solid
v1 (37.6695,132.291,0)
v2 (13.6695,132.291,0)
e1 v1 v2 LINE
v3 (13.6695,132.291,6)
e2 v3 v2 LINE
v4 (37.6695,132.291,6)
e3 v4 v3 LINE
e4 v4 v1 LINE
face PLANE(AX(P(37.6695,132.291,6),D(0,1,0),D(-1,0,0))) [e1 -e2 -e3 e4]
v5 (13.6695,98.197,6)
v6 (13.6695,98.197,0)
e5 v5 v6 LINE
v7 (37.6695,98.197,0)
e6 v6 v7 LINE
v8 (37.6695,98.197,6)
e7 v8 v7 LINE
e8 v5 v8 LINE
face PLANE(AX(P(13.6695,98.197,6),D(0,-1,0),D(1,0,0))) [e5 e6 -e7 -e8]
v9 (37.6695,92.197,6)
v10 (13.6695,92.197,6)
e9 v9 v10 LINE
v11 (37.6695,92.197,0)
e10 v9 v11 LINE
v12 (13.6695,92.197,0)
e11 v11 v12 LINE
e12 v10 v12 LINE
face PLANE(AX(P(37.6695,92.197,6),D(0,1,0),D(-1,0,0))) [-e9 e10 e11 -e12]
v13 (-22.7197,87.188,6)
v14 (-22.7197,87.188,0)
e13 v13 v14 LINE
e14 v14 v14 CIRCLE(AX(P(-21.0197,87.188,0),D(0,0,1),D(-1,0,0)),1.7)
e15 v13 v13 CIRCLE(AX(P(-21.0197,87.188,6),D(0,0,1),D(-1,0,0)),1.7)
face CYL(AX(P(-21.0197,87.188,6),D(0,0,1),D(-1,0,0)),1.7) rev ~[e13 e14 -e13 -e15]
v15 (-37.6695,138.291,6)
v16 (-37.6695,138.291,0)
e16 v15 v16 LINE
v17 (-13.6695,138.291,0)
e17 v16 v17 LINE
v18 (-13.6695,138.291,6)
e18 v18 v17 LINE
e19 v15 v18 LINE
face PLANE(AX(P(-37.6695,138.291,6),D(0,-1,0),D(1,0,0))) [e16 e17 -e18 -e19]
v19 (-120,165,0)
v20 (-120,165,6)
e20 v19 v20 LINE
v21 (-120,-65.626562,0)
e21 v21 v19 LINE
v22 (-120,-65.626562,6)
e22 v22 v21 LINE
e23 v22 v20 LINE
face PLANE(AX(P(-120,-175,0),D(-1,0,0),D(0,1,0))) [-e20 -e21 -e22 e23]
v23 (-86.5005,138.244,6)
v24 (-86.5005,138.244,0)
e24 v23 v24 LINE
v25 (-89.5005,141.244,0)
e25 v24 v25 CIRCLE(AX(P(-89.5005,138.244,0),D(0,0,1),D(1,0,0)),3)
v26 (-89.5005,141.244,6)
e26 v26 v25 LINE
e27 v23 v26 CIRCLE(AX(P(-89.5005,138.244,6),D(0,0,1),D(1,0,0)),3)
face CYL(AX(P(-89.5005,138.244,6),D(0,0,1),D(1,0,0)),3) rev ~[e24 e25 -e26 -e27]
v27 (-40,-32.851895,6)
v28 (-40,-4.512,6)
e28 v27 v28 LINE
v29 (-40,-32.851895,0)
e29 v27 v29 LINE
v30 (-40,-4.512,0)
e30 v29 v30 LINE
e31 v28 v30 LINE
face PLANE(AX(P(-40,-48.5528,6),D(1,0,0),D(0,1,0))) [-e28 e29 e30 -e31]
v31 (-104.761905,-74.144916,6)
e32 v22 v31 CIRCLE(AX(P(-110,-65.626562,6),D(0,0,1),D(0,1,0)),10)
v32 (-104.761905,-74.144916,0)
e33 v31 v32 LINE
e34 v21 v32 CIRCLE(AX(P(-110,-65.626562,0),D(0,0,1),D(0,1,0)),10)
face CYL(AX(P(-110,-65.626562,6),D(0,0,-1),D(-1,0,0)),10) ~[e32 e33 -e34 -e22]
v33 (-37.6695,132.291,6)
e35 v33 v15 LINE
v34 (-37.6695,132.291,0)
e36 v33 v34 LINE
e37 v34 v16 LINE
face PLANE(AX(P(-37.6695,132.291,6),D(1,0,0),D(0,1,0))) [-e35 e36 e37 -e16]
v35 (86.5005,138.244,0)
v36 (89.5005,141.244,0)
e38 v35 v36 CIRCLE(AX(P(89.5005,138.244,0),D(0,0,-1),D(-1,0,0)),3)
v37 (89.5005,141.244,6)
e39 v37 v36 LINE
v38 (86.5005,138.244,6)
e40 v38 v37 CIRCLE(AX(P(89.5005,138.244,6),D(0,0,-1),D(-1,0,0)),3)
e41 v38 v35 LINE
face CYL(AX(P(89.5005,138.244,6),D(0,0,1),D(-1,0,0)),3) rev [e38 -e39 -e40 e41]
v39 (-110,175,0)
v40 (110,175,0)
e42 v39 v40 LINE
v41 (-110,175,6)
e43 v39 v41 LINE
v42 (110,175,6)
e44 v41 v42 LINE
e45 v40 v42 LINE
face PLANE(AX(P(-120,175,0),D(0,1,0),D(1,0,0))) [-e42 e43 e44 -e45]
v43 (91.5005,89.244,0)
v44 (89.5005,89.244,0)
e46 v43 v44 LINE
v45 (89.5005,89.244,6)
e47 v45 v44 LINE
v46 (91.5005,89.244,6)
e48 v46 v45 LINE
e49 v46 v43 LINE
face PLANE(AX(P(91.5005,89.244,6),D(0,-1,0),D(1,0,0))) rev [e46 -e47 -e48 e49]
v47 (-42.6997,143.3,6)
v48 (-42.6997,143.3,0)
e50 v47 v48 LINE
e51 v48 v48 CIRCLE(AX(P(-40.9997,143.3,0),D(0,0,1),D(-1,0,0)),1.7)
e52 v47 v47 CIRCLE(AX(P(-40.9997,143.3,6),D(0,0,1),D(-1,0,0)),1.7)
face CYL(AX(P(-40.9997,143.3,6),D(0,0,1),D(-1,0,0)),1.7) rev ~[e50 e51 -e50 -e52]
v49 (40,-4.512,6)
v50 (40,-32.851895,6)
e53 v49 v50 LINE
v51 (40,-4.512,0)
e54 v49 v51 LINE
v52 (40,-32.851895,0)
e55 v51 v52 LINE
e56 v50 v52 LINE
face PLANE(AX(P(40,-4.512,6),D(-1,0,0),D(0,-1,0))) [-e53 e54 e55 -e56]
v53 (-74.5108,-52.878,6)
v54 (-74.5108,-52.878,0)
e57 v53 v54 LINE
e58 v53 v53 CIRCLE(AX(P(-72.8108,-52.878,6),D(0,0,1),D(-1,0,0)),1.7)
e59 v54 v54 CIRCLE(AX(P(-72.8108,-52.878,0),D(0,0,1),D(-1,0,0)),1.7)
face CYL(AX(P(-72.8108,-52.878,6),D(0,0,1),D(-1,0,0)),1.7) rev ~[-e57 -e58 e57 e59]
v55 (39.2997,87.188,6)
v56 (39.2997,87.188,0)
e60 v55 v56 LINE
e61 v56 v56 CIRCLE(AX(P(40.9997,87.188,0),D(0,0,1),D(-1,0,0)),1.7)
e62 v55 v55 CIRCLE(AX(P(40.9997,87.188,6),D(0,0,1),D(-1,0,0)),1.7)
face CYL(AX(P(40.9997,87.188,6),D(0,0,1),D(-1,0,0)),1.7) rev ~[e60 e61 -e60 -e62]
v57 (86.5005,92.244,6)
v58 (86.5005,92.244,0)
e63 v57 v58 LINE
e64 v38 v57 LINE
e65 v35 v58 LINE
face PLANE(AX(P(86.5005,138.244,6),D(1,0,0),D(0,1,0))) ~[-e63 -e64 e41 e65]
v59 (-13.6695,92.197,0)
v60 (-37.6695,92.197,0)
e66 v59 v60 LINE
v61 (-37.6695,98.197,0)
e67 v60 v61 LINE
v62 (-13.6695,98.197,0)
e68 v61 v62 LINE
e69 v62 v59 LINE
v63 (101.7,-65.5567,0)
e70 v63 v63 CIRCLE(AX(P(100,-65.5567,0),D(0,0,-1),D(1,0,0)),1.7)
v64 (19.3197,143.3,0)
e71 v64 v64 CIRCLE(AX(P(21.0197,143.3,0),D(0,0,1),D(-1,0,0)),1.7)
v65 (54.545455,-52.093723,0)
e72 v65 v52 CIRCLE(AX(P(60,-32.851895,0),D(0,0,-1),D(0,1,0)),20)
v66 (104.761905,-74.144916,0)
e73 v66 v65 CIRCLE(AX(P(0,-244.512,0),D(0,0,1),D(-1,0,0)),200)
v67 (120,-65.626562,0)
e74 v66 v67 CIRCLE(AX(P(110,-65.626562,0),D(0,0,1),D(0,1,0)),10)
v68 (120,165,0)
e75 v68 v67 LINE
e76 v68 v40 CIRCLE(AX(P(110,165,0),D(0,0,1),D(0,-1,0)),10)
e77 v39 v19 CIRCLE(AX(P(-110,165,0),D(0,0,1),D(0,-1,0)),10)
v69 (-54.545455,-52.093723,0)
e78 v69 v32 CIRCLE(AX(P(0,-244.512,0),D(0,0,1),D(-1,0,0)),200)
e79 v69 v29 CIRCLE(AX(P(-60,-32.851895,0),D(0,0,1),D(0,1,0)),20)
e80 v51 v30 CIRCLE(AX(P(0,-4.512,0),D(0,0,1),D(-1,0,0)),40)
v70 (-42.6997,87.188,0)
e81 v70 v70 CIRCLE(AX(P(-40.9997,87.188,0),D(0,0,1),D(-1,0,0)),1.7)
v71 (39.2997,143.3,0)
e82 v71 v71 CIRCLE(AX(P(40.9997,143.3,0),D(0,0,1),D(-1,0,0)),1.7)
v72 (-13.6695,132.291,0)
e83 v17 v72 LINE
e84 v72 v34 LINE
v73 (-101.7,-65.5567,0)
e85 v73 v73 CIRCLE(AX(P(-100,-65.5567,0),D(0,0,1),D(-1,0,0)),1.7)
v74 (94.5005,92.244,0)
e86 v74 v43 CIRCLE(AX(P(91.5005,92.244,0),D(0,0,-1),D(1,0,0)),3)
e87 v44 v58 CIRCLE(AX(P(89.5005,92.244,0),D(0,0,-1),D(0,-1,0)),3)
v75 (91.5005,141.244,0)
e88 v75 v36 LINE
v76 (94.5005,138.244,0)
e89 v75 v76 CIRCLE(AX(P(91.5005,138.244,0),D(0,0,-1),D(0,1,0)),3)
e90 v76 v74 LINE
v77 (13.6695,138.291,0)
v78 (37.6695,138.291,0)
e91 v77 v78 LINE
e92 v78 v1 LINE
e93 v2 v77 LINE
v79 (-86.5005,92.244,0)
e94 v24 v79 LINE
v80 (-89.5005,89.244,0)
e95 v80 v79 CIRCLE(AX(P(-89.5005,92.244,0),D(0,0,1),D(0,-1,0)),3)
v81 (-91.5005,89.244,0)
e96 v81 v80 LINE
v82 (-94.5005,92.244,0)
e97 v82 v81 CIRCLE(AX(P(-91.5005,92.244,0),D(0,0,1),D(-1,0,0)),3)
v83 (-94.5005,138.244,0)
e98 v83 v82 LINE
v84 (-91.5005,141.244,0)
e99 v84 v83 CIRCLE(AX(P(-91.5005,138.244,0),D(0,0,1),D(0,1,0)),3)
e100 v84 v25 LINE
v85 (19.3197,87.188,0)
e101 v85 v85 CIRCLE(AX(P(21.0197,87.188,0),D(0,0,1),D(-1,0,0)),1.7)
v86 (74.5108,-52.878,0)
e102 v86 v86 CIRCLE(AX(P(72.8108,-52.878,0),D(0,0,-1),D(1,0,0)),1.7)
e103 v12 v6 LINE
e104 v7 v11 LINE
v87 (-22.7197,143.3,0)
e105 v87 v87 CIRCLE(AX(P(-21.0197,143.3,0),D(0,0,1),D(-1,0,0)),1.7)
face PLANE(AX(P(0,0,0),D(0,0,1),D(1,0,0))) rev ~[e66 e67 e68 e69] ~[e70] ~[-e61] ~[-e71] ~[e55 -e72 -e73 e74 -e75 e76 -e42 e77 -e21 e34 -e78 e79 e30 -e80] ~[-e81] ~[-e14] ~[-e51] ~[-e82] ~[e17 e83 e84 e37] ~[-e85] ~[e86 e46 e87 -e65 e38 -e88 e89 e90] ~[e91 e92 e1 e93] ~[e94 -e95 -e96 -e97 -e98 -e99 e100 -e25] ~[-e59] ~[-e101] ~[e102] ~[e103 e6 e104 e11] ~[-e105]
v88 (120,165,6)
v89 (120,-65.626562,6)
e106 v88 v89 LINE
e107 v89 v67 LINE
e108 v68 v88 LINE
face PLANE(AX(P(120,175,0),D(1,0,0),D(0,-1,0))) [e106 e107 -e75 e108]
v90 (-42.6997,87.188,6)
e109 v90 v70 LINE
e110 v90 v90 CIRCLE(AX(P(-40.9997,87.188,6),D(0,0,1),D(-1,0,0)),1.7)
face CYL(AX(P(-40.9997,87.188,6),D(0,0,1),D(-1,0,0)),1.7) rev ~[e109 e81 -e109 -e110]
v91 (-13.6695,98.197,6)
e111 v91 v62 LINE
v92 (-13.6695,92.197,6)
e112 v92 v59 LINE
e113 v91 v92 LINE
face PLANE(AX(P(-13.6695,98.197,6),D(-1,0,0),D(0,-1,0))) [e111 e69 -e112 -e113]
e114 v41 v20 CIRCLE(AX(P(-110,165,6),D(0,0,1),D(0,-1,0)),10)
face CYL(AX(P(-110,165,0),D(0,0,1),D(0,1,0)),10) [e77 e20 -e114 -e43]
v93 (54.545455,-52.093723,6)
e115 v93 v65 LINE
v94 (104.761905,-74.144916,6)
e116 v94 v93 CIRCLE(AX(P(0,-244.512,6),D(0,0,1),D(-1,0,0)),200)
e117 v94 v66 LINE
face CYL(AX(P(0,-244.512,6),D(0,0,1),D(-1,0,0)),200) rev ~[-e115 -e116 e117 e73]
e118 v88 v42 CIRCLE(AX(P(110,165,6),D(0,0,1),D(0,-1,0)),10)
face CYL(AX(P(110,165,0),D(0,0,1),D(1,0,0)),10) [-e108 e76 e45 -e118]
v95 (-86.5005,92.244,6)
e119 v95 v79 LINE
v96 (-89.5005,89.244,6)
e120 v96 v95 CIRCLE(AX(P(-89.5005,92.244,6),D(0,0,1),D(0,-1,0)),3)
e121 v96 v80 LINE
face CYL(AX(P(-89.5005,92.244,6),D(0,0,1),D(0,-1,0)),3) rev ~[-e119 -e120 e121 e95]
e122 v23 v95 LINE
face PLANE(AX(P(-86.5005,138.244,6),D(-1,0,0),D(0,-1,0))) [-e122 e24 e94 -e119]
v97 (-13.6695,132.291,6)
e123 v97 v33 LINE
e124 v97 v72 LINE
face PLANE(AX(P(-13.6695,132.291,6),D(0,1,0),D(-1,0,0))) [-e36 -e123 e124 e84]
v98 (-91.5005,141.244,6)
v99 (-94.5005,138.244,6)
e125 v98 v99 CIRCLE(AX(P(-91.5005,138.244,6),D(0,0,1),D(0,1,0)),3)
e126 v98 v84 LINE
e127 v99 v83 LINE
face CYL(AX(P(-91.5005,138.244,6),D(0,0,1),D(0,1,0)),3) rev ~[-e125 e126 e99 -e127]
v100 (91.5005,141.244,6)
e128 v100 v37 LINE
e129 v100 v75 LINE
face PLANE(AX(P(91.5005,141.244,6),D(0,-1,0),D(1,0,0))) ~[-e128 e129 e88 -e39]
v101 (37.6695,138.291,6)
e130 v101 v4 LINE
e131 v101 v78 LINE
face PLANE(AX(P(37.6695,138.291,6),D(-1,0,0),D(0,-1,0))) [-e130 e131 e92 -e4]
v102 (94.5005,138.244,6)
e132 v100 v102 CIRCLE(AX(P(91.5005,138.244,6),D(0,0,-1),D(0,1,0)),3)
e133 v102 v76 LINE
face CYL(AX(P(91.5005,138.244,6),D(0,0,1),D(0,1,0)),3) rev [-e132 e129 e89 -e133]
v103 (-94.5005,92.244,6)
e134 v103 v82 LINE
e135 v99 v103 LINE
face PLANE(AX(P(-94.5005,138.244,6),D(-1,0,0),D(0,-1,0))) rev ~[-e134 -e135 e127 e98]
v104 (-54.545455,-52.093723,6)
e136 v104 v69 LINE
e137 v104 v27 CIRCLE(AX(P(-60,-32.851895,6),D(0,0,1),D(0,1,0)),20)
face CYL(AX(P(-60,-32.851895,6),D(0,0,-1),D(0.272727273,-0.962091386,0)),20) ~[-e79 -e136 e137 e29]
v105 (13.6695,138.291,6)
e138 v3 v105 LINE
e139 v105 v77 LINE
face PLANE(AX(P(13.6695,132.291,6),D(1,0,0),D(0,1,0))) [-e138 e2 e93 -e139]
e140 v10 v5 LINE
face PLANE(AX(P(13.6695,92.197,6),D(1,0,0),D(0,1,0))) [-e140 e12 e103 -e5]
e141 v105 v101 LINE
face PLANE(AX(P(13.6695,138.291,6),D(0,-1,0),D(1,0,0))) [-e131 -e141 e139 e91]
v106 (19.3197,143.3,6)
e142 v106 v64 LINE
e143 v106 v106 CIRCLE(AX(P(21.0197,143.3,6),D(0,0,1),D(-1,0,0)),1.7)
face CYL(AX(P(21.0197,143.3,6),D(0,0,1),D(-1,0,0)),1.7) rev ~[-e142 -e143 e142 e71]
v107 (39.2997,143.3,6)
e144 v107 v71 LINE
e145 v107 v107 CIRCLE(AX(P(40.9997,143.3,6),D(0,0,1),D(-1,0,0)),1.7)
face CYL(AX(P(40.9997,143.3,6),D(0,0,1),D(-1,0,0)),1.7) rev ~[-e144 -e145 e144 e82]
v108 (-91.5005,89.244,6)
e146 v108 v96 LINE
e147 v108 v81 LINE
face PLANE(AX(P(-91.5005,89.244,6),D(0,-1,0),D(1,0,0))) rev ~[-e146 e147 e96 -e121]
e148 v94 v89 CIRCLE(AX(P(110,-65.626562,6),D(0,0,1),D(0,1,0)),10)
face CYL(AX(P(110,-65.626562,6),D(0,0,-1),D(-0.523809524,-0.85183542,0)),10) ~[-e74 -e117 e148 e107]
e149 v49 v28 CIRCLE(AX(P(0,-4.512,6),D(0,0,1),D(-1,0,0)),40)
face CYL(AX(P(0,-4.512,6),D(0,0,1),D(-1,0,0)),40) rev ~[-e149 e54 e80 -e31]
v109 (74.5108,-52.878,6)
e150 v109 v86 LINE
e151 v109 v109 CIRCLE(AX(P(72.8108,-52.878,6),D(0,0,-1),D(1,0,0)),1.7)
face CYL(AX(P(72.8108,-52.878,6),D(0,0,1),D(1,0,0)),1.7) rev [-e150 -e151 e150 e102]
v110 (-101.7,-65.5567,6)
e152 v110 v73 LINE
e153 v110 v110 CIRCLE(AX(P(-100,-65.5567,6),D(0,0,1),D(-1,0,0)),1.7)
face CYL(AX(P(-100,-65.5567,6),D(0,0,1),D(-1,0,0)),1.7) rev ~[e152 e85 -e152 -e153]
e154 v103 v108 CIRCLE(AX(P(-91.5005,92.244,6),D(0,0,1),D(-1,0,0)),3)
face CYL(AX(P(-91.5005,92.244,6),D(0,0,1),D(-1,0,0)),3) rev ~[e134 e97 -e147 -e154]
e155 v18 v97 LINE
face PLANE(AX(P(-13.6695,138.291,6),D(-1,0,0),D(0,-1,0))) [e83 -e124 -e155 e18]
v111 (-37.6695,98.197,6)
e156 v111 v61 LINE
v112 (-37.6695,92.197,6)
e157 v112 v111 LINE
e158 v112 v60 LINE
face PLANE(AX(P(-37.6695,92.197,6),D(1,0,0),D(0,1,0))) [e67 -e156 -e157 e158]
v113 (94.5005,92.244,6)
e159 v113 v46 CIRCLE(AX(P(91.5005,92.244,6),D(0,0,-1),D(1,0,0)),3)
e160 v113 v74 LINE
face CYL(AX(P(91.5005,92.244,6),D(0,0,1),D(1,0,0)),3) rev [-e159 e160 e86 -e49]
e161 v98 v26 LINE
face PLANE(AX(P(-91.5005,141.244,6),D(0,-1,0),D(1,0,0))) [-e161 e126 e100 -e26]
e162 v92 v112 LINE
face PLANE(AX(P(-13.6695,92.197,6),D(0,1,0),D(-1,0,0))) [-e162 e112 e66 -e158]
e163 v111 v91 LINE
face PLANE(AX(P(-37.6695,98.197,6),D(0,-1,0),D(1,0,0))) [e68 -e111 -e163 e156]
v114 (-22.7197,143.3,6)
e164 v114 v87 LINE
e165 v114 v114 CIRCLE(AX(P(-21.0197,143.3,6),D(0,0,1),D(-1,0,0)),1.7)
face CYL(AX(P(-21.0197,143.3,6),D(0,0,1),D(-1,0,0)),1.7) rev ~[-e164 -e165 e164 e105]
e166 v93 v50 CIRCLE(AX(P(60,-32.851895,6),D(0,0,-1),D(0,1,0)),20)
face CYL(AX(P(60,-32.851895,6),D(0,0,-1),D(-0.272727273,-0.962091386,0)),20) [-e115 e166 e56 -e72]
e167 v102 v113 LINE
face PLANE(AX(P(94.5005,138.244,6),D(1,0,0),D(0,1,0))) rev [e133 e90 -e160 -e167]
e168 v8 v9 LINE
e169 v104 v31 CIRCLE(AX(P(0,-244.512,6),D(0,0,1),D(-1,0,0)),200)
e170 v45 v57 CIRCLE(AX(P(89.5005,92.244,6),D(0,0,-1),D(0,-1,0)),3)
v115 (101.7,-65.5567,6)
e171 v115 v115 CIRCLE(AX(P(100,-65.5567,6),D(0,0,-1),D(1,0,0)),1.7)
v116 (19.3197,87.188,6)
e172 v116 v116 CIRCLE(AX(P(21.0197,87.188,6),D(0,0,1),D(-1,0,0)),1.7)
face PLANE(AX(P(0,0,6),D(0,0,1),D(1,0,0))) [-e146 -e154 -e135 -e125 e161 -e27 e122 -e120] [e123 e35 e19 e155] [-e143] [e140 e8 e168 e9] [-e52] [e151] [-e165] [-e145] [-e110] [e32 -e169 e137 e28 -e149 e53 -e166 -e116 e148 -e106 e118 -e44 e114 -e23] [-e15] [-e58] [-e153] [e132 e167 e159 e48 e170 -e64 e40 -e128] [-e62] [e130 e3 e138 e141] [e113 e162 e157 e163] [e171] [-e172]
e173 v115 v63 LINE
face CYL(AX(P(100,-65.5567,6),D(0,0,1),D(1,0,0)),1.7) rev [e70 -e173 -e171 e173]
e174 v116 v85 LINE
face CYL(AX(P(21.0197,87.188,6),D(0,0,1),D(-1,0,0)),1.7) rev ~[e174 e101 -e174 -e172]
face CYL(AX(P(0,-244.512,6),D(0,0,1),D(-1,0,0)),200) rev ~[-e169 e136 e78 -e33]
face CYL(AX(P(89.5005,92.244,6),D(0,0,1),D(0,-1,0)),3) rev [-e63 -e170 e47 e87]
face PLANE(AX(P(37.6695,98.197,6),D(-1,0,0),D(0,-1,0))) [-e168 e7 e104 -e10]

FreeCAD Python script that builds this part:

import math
import FreeCAD as App
import Part
import Sketcher

V = App.Vector
Q = App.Units.Quantity


def edges_at(feature, points):
    """Names of the edges that pass closest to the given points."""
    edges = feature.Shape.Edges
    near = lambda p: min(range(len(edges)), key=lambda i: edges[i].distToShape(Part.Vertex(*p))[0])
    return sorted({f"Edge{near(p) + 1}" for p in points})

doc = App.newDocument("Part")
body = doc.addObject("PartDesign::Body", "Body")

# Sketch on XY plane
sketch1 = body.newObject("Sketcher::SketchObject", "Sketch")
sketch1.AttachmentSupport = (doc.getObject("XY_Plane"), [""])
sketch1.MapMode = "FlatFace"
sketch1.addGeometry([
    Part.LineSegment(V(120, 175, 0), V(-120, 175, 0)),
    Part.LineSegment(V(-120, 175, 0), V(-120, -175, 0)),
    Part.LineSegment(V(-120, -175, 0), V(120, -175, 0)),
    Part.LineSegment(V(120, -175, 0), V(120, 175, 0)),
], False)
sketch1.addConstraint([
    Sketcher.Constraint("Coincident", 0, 2, 1, 1),
    Sketcher.Constraint("Coincident", 1, 2, 2, 1),
    Sketcher.Constraint("Coincident", 2, 2, 3, 1),
    Sketcher.Constraint("Coincident", 3, 2, 0, 1),
    Sketcher.Constraint("Horizontal", 0),
    Sketcher.Constraint("Vertical", 1),
    Sketcher.Constraint("Horizontal", 2),
    Sketcher.Constraint("Vertical", 3),
    Sketcher.Constraint("Symmetric", 0, 2, 2, 2, -1, 1),
    Sketcher.Constraint("DistanceX", 0, 2, 0, 1, Q("240 mm")),
    Sketcher.Constraint("DistanceY", 1, 2, 1, 1, Q("350 mm")),
])
pad1 = body.newObject("PartDesign::Pad", "Pad")
pad1.Profile = sketch1
pad1.Length = 6

# Sketch on XY plane
sketch2 = body.newObject("Sketcher::SketchObject", "Sketch001")
sketch2.AttachmentSupport = (doc.getObject("XY_Plane"), [""])
sketch2.MapMode = "FlatFace"
sketch2.AttachmentOffset = App.Placement(V(0, 0, 6), App.Rotation())
sketch2.addGeometry([
    Part.LineSegment(V(-13.7, 98.2, 0), V(-37.7, 98.2, 0)),  # 0
    Part.LineSegment(V(-37.7, 98.2, 0), V(-37.7, 92.2, 0)),  # 1
    Part.LineSegment(V(-37.7, 92.2, 0), V(-13.7, 92.2, 0)),  # 2
    Part.LineSegment(V(-13.7, 92.2, 0), V(-13.7, 98.2, 0)),  # 3
    Part.LineSegment(V(37.7, 98.2, 0), V(13.7, 98.2, 0)),  # 4
    Part.LineSegment(V(13.7, 98.2, 0), V(13.7, 92.2, 0)),  # 5
    Part.LineSegment(V(13.7, 92.2, 0), V(37.7, 92.2, 0)),  # 6
    Part.LineSegment(V(37.7, 92.2, 0), V(37.7, 98.2, 0)),  # 7
    Part.LineSegment(V(-13.7, 138.3, 0), V(-37.7, 138.3, 0)),  # 8
    Part.LineSegment(V(-37.7, 138.3, 0), V(-37.7, 132.3, 0)),  # 9
    Part.LineSegment(V(-37.7, 132.3, 0), V(-13.7, 132.3, 0)),  # 10
    Part.LineSegment(V(-13.7, 132.3, 0), V(-13.7, 138.3, 0)),  # 11
    Part.LineSegment(V(37.7, 138.3, 0), V(13.7, 138.3, 0)),  # 12
    Part.LineSegment(V(13.7, 138.3, 0), V(13.7, 132.3, 0)),  # 13
    Part.LineSegment(V(13.7, 132.3, 0), V(37.7, 132.3, 0)),  # 14
    Part.LineSegment(V(37.7, 132.3, 0), V(37.7, 138.3, 0)),  # 15
    Part.Circle(V(-41, 143.3, 0), V(0, 0, 1), 1.7),  # 16
    Part.Circle(V(-21, 143.3, 0), V(0, 0, 1), 1.7),  # 17
    Part.Circle(V(-41, 87.2, 0), V(0, 0, 1), 1.7),  # 18
    Part.Circle(V(-21, 87.2, 0), V(0, 0, 1), 1.7),  # 19
    Part.Circle(V(21, 143.3, 0), V(0, 0, 1), 1.7),  # 20
    Part.Circle(V(41, 143.3, 0), V(0, 0, 1), 1.7),  # 21
    Part.Circle(V(21, 87.2, 0), V(0, 0, 1), 1.7),  # 22
    Part.Circle(V(41, 87.2, 0), V(0, 0, 1), 1.7),  # 23
], False)
sketch2.addConstraint([
    Sketcher.Constraint("Coincident", 0, 2, 1, 1),
    Sketcher.Constraint("Coincident", 1, 2, 2, 1),
    Sketcher.Constraint("Coincident", 2, 2, 3, 1),
    Sketcher.Constraint("Coincident", 3, 2, 0, 1),
    Sketcher.Constraint("Coincident", 4, 2, 5, 1),
    Sketcher.Constraint("Coincident", 5, 2, 6, 1),
    Sketcher.Constraint("Coincident", 6, 2, 7, 1),
    Sketcher.Constraint("Coincident", 7, 2, 4, 1),
    Sketcher.Constraint("Coincident", 8, 2, 9, 1),
    Sketcher.Constraint("Coincident", 9, 2, 10, 1),
    Sketcher.Constraint("Coincident", 10, 2, 11, 1),
    Sketcher.Constraint("Coincident", 11, 2, 8, 1),
    Sketcher.Constraint("Coincident", 12, 2, 13, 1),
    Sketcher.Constraint("Coincident", 13, 2, 14, 1),
    Sketcher.Constraint("Coincident", 14, 2, 15, 1),
    Sketcher.Constraint("Coincident", 15, 2, 12, 1),
    Sketcher.Constraint("Horizontal", 0),
    Sketcher.Constraint("Vertical", 1),
    Sketcher.Constraint("Horizontal", 2),
    Sketcher.Constraint("Vertical", 3),
    Sketcher.Constraint("Horizontal", 4),
    Sketcher.Constraint("Vertical", 5),
    Sketcher.Constraint("Horizontal", 6),
    Sketcher.Constraint("Vertical", 7),
    Sketcher.Constraint("Horizontal", 8),
    Sketcher.Constraint("Vertical", 9),
    Sketcher.Constraint("Horizontal", 10),
    Sketcher.Constraint("Vertical", 11),
    Sketcher.Constraint("Horizontal", 12),
    Sketcher.Constraint("Vertical", 13),
    Sketcher.Constraint("Horizontal", 14),
    Sketcher.Constraint("Vertical", 15),
    Sketcher.Constraint("Equal", 16, 17),
    Sketcher.Constraint("Equal", 17, 18),
    Sketcher.Constraint("Equal", 18, 19),
    Sketcher.Constraint("Equal", 19, 20),
    Sketcher.Constraint("Equal", 20, 21),
    Sketcher.Constraint("Equal", 21, 22),
    Sketcher.Constraint("Equal", 22, 23),
    Sketcher.Constraint("Symmetric", 17, 3, 20, 3, -2),
    Sketcher.Constraint("Symmetric", 16, 3, 21, 3, -2),
    Sketcher.Constraint("Symmetric", 19, 3, 22, 3, -2),
    Sketcher.Constraint("Symmetric", 18, 3, 23, 3, -2),
    Sketcher.Constraint("Symmetric", 3, 2, 4, 2, -2),
    Sketcher.Constraint("Symmetric", 1, 2, 6, 2, -2),
    Sketcher.Constraint("Symmetric", 11, 2, 12, 2, -2),
    Sketcher.Constraint("Symmetric", 9, 2, 14, 2, -2),
    Sketcher.Constraint("Horizontal", 16, 3, 17, 3),
    Sketcher.Constraint("Horizontal", 18, 3, 19, 3),
    Sketcher.Constraint("Vertical", 16, 3, 18, 3),
    Sketcher.Constraint("Vertical", 17, 3, 19, 3),
    Sketcher.Constraint("Vertical", 1, 2, 8, 2),
    Sketcher.Constraint("Vertical", 3, 2, 10, 2),
    Sketcher.Constraint("Equal", 7, 9),
    Sketcher.Constraint("Diameter", 16, Q("3.4 mm")),
    Sketcher.Constraint("DistanceX", 0, 2, 0, 1, Q("24 mm")),
    Sketcher.Constraint("DistanceY", 1, 2, 1, 1, Q("6 mm")),
    Sketcher.Constraint("DistanceX", 16, 3, 17, 3, Q("19.98 mm")),
    Sketcher.Constraint("DistanceX", 3, 2, 4, 2, Q("27.339 mm")),
    Sketcher.Constraint("DistanceY", 0, 2, 9, 2, Q("34.094 mm")),
    Sketcher.Constraint("DistanceY", -1, 1, 16, 3, Q("143.3 mm")),
    Sketcher.Constraint("DistanceY", -1, 1, 18, 3, Q("87.188 mm")),
    Sketcher.Constraint("DistanceY", -1, 1, 0, 2, Q("98.197 mm")),
    Sketcher.Constraint("DistanceX", 16, 3, -1, 1, Q("40.9997 mm")),
])
pocket1 = body.newObject("PartDesign::Pocket", "Pocket")
pocket1.Profile = sketch2
pocket1.Length = 6

# Sketch on XY plane
sketch3 = body.newObject("Sketcher::SketchObject", "Sketch002")
sketch3.AttachmentSupport = (doc.getObject("XY_Plane"), [""])
sketch3.MapMode = "FlatFace"
sketch3.AttachmentOffset = App.Placement(V(0, 0, 6), App.Rotation())
sketch3.addGeometry([
    Part.ArcOfCircle(Part.Circle(V(-91.5, 138.2, 0), V(0, 0, 1), 3), math.radians(90), math.radians(180)),  # 0
    Part.LineSegment(V(-94.5, 138.2, 0), V(-94.5, 92.2, 0)),  # 1
    Part.ArcOfCircle(Part.Circle(V(-91.5, 92.2, 0), V(0, 0, 1), 3), math.radians(180), math.radians(270)),  # 2
    Part.LineSegment(V(-91.5, 89.2, 0), V(-89.5, 89.2, 0)),  # 3
    Part.ArcOfCircle(Part.Circle(V(-89.5, 92.2, 0), V(0, 0, 1), 3), math.radians(-90), math.radians(0)),  # 4
    Part.LineSegment(V(-86.5, 92.2, 0), V(-86.5, 138.2, 0)),  # 5
    Part.ArcOfCircle(Part.Circle(V(-89.5, 138.2, 0), V(0, 0, 1), 3), math.radians(0), math.radians(90)),  # 6
    Part.LineSegment(V(-89.5, 141.2, 0), V(-91.5, 141.2, 0)),  # 7
], False)
sketch3.addConstraint([
    Sketcher.Constraint("Tangent", 0, 2, 1, 1),
    Sketcher.Constraint("Tangent", 1, 2, 2, 1),
    Sketcher.Constraint("Tangent", 2, 2, 3, 1),
    Sketcher.Constraint("Tangent", 3, 2, 4, 1),
    Sketcher.Constraint("Tangent", 4, 2, 5, 1),
    Sketcher.Constraint("Tangent", 5, 2, 6, 1),
    Sketcher.Constraint("Tangent", 6, 2, 7, 1),
    Sketcher.Constraint("Tangent", 7, 2, 0, 1),
    Sketcher.Constraint("Vertical", 1),
    Sketcher.Constraint("Horizontal", 3),
    Sketcher.Constraint("Vertical", 5),
    Sketcher.Constraint("Horizontal", 7),
    Sketcher.Constraint("Equal", 0, 2),
    Sketcher.Constraint("Equal", 2, 4),
    Sketcher.Constraint("Equal", 4, 6),
    Sketcher.Constraint("Radius", 0, Q("3 mm")),
    Sketcher.Constraint("DistanceX", 3, 1, 3, 2, Q("2 mm")),
    Sketcher.Constraint("DistanceY", 1, 2, 1, 1, Q("46 mm")),
    Sketcher.Constraint("DistanceY", -1, 1, 0, 3, Q("138.244 mm")),
    Sketcher.Constraint("DistanceX", 0, 3, -1, 1, Q("91.5005 mm")),
])
pocket2 = body.newObject("PartDesign::Pocket", "Pocket001")
pocket2.Profile = sketch3
pocket2.Length = 6
doc.recompute()

mirrored = body.newObject("PartDesign::Mirrored", "Mirrored")
mirrored.Originals = [pocket2]
mirrored.MirrorPlane = (doc.getObject("YZ_Plane"), [""])
body.Tip = mirrored

# Sketch on XY plane
sketch4 = body.newObject("Sketcher::SketchObject", "Sketch003")
sketch4.AttachmentSupport = (doc.getObject("XY_Plane"), [""])
sketch4.MapMode = "FlatFace"
sketch4.AttachmentOffset = App.Placement(V(0, 0, 6), App.Rotation())
sketch4.addGeometry(Part.Circle(V(0, -5, 0), V(0, 0, 1), 40), False)
sketch4.addConstraint([
    Sketcher.Constraint("PointOnObject", 0, 3, -2),
    Sketcher.Constraint("Diameter", 0, Q("80 mm")),
    Sketcher.Constraint("DistanceY", 0, 3, -1, 1, Q("4.512 mm")),
])
pocket3 = body.newObject("PartDesign::Pocket", "Pocket002")
pocket3.Profile = sketch4
pocket3.Length = 6

# Sketch on XY plane
sketch5 = body.newObject("Sketcher::SketchObject", "Sketch004")
sketch5.AttachmentSupport = (doc.getObject("XY_Plane"), [""])
sketch5.MapMode = "FlatFace"
sketch5.AttachmentOffset = App.Placement(V(0, 0, 6), App.Rotation())
sketch5.addGeometry([
    Part.LineSegment(V(-120, -85, 0), V(-120, -175, 0)),  # 0
    Part.LineSegment(V(-120, -175, 0), V(120, -175, 0)),  # 1
    Part.LineSegment(V(120, -175, 0), V(120, -85, 0)),  # 2
    Part.ArcOfCircle(Part.Circle(V(0, -245, 0), V(0, 0, 1), 200), math.radians(53), math.radians(78)),  # 3
    Part.LineSegment(V(40, -49, 0), V(40, -5, 0)),  # 4
    Part.LineSegment(V(40, -5, 0), V(-40, -5, 0)),  # 5
    Part.LineSegment(V(-40, -5, 0), V(-40, -49, 0)),  # 6
    Part.ArcOfCircle(Part.Circle(V(0, -245, 0), V(0, 0, 1), 200), math.radians(102), math.radians(127)),  # 7
], False)
sketch5.addConstraint([
    Sketcher.Constraint("Coincident", 0, 2, 1, 1),
    Sketcher.Constraint("Coincident", 1, 2, 2, 1),
    Sketcher.Constraint("Coincident", 2, 2, 3, 1),
    Sketcher.Constraint("Coincident", 3, 2, 4, 1),
    Sketcher.Constraint("Coincident", 4, 2, 5, 1),
    Sketcher.Constraint("Coincident", 5, 2, 6, 1),
    Sketcher.Constraint("Coincident", 6, 2, 7, 1),
    Sketcher.Constraint("Coincident", 7, 2, 0, 1),
    Sketcher.Constraint("Vertical", 0),
    Sketcher.Constraint("Horizontal", 1),
    Sketcher.Constraint("Vertical", 2),
    Sketcher.Constraint("Vertical", 4),
    Sketcher.Constraint("Horizontal", 5),
    Sketcher.Constraint("Vertical", 6),
    Sketcher.Constraint("Coincident", 7, 3, 3, 3),
    Sketcher.Constraint("Equal", 3, 7),
    Sketcher.Constraint("Symmetric", 3, 2, 6, 2, -2),
    Sketcher.Constraint("Horizontal", 2, 2, 7, 2),
    Sketcher.Constraint("Radius", 3, Q("200 mm")),
    Sketcher.Constraint("DistanceX", 5, 2, 5, 1, Q("80 mm")),
    Sketcher.Constraint("DistanceX", 4, 2, 2, 2, Q("80 mm")),
    Sketcher.Constraint("DistanceY", 2, 2, 4, 2, Q("80 mm")),
    Sketcher.Constraint("DistanceY", 0, 2, -1, 1, Q("175 mm")),
    Sketcher.Constraint("DistanceY", 0, 2, 0, 1, Q("90.488 mm")),
])
pocket4 = body.newObject("PartDesign::Pocket", "Pocket003")
pocket4.Profile = sketch5
pocket4.Length = 6
doc.recompute()

fillet = body.newObject("PartDesign::Fillet", "Fillet")
fillet.Base = (pocket4, edges_at(pocket4, [(-40, -48.553, 3), (40, -48.553, 3)]))
fillet.Radius = 20

# Sketch on XY plane
sketch6 = body.newObject("Sketcher::SketchObject", "Sketch005")
sketch6.AttachmentSupport = (doc.getObject("XY_Plane"), [""])
sketch6.MapMode = "FlatFace"
sketch6.AttachmentOffset = App.Placement(V(0, 0, 6), App.Rotation())
sketch6.addGeometry([
    Part.Circle(V(-100, -65.6, 0), V(0, 0, 1), 1.7),
    Part.Circle(V(-72.8, -52.9, 0), V(0, 0, 1), 1.7),
], False)
sketch6.addConstraint([
    Sketcher.Constraint("Equal", 0, 1),
    Sketcher.Constraint("Diameter", 0, Q("3.4 mm")),
    Sketcher.Constraint("DistanceX", 0, 3, -1, 1, Q("100 mm")),
    Sketcher.Constraint("DistanceY", 1, 3, -1, 1, Q("52.878 mm")),
    Sketcher.Constraint("DistanceY", 0, 3, -1, 1, Q("65.5567 mm")),
    Sketcher.Constraint("DistanceX", 1, 3, -1, 1, Q("72.8108 mm")),
])
pocket5 = body.newObject("PartDesign::Pocket", "Pocket004")
pocket5.Profile = sketch6
pocket5.Length = 6
doc.recompute()

mirrored2 = body.newObject("PartDesign::Mirrored", "Mirrored001")
mirrored2.Originals = [pocket5]
mirrored2.MirrorPlane = (doc.getObject("YZ_Plane"), [""])
body.Tip = mirrored2
doc.recompute()

fillet2 = body.newObject("PartDesign::Fillet", "Fillet001")
fillet2.Base = (mirrored2, edges_at(mirrored2, [
    (120, -84.512, 3),
    (120, 175, 3),
    (-120, 175, 3),
    (-120, -84.512, 3),
]))
fillet2.Radius = 10

doc.recompute()
